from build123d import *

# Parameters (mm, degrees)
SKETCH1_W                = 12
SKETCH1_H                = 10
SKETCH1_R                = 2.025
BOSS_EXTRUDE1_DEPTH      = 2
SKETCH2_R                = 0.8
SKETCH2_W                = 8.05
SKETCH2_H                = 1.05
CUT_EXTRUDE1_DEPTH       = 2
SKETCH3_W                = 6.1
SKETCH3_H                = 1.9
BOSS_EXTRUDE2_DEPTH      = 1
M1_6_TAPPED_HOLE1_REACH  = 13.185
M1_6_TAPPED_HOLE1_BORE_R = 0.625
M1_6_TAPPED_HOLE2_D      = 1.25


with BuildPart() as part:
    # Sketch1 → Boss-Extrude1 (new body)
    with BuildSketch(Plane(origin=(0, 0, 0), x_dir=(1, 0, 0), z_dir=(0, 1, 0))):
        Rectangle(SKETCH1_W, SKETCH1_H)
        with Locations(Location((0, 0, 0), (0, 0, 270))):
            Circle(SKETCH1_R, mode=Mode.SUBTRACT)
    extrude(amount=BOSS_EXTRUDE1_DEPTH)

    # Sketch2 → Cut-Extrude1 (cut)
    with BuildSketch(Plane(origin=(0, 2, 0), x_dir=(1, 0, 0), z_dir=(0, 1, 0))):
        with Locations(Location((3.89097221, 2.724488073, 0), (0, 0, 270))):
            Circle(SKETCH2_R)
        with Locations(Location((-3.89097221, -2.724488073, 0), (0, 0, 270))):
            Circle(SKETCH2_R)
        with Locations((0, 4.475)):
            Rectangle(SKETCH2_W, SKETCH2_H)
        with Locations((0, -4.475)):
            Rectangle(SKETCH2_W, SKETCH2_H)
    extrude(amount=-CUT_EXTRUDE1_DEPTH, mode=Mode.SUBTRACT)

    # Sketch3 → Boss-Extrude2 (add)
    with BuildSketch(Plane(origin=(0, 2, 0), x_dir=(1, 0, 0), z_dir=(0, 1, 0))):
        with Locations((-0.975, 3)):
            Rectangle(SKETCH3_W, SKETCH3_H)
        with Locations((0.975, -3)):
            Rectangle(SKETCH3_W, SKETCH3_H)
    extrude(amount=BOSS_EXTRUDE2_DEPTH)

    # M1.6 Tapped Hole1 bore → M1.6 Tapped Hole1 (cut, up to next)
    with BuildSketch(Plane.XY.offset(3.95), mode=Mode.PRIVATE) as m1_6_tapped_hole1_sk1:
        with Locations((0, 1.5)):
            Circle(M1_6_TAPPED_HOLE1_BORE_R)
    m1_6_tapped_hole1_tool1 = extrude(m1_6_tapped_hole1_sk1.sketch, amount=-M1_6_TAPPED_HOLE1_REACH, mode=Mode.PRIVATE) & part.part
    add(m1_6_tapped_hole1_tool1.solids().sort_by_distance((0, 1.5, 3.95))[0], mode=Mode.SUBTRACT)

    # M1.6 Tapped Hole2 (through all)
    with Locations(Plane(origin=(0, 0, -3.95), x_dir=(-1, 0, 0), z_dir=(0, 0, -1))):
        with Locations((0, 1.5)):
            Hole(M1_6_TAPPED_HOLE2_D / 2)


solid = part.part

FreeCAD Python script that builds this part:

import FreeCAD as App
import Part
import Sketcher
from FreeCAD import Vector


def add_polygon(sketch, points):
    """Adds a closed chain of lines whose ends are joined by coincident constraints."""
    first, n = sketch.GeometryCount, len(points)
    for a, b in zip(points, points[1:] + points[:1]):
        sketch.addGeometry(Part.LineSegment(App.Vector(*a, 0), App.Vector(*b, 0)), False)
    for i in range(n):
        sketch.addConstraint(Sketcher.Constraint("Coincident", first + i, 2, first + (i + 1) % n, 1))

doc = App.newDocument("Part")
params = doc.addObject("Spreadsheet::Sheet", "Params")
for row, (alias, value) in enumerate([
    ("sketch1_diameter", "4.05 mm"),
    ("sketch1_width", "12 mm"),
    ("sketch1_height", "10 mm"),
    ("pad1_length", "2 mm"),
    ("sketch2_diameter", "1.6 mm"),
    ("sketch2_width", "8.05 mm"),
    ("sketch2_height", "1.05 mm"),
    ("pocket1_length", "2 mm"),
    ("sketch3_width", "6.1 mm"),
    ("sketch3_height", "1.9 mm"),
    ("pad2_length", "1 mm"),
    ("sketch4_diameter", "1.25 mm"),
    ("pocket2_length", "2.023864 mm"),
    ("sketch5_diameter", "1.25 mm"),
    ("hole_diameter", "1.25 mm"),
], start=1):
    params.set(f"A{row}", alias)
    params.set(f"B{row}", "=" + value)
    params.setAlias(f"B{row}", alias)

body = doc.addObject("PartDesign::Body", "Body")

# Sketch on XZ plane
sketch1 = body.newObject("Sketcher::SketchObject", "Sketch")
sketch1.AttachmentSupport = (doc.getObject("XZ_Plane"), [""])
sketch1.MapMode = "FlatFace"
add_polygon(sketch1, [(-6, -5), (-6, 5), (6, 5), (6, -5)])  # lines 0-3
sketch1.addGeometry(Part.Circle(Vector(0, 0, 0), Vector(0, 0, 1), 2), False)  # 4
sketch1.addConstraint(Sketcher.Constraint("Vertical", 0))
sketch1.addConstraint(Sketcher.Constraint("Horizontal", 1))
sketch1.addConstraint(Sketcher.Constraint("Vertical", 2))
sketch1.addConstraint(Sketcher.Constraint("Horizontal", 3))
sketch1.addConstraint(Sketcher.Constraint("Coincident", 4, 3, -1, 1))
sketch1.addConstraint(Sketcher.Constraint("Symmetric", 0, 2, 2, 2, -1, 1))
sketch1.addConstraint(Sketcher.Constraint("Diameter", 4, 4.05))
sketch1.addConstraint(Sketcher.Constraint("DistanceX", 1, 1, 1, 2, 12.0))
sketch1.addConstraint(Sketcher.Constraint("DistanceY", 0, 1, 0, 2, 10.0))
sketch1.setExpression("Constraints[10]", "Params.sketch1_diameter")
sketch1.setExpression("Constraints[11]", "Params.sketch1_width")
sketch1.setExpression("Constraints[12]", "Params.sketch1_height")
pad1 = body.newObject("PartDesign::Pad", "Pad")
pad1.Profile = sketch1
pad1.setExpression("Length", "Params.pad1_length")
pad1.Reversed = True

# Sketch on XZ plane
sketch2 = body.newObject("Sketcher::SketchObject", "Sketch001")
sketch2.AttachmentSupport = (doc.getObject("XZ_Plane"), [""])
sketch2.MapMode = "FlatFace"
sketch2.AttachmentOffset = App.Placement(Vector(0, 0, -2), App.Rotation())
sketch2.addGeometry(Part.Circle(Vector(3.9, -2.7, 0), Vector(0, 0, 1), 0.8), False)  # 0
sketch2.addGeometry(Part.Circle(Vector(-3.9, 2.7, 0), Vector(0, 0, 1), 0.8), False)  # 1
add_polygon(sketch2, [(-4, -5), (-4, -4), (4, -4), (4, -5)])  # lines 2-5
add_polygon(sketch2, [(-4, 4), (-4, 5), (4, 5), (4, 4)])  # lines 6-9
sketch2.addConstraint(Sketcher.Constraint("Vertical", 2))
sketch2.addConstraint(Sketcher.Constraint("Horizontal", 3))
sketch2.addConstraint(Sketcher.Constraint("Vertical", 4))
sketch2.addConstraint(Sketcher.Constraint("Horizontal", 5))
sketch2.addConstraint(Sketcher.Constraint("Vertical", 6))
sketch2.addConstraint(Sketcher.Constraint("Horizontal", 7))
sketch2.addConstraint(Sketcher.Constraint("Vertical", 8))
sketch2.addConstraint(Sketcher.Constraint("Horizontal", 9))
sketch2.addConstraint(Sketcher.Constraint("Equal", 0, 1))
sketch2.addConstraint(Sketcher.Constraint("Symmetric", 0, 3, 1, 3, -1, 1))
sketch2.addConstraint(Sketcher.Constraint("Symmetric", 4, 2, 6, 2, -1, 1))
sketch2.addConstraint(Sketcher.Constraint("Symmetric", 2, 2, 8, 2, -1, 1))
sketch2.addConstraint(Sketcher.Constraint("Vertical", 5, 2, 6, 2))
sketch2.addConstraint(Sketcher.Constraint("Diameter", 0, 1.6))
sketch2.addConstraint(Sketcher.Constraint("DistanceY", 4, 2, -1, 1, 5.0))
sketch2.addConstraint(Sketcher.Constraint("DistanceX", 3, 1, 3, 2, 8.05))
sketch2.addConstraint(Sketcher.Constraint("DistanceY", 2, 1, 2, 2, 1.05))
sketch2.addConstraint(Sketcher.Constraint("DistanceY", 0, 3, -1, 1, 2.724488))
sketch2.addConstraint(Sketcher.Constraint("DistanceX", -1, 1, 0, 3, 3.890972))
sketch2.setExpression("Constraints[21]", "Params.sketch2_diameter")
sketch2.setExpression("Constraints[23]", "Params.sketch2_width")
sketch2.setExpression("Constraints[24]", "Params.sketch2_height")
pocket1 = body.newObject("PartDesign::Pocket", "Pocket")
pocket1.Profile = sketch2
pocket1.setExpression("Length", "Params.pocket1_length")
pocket1.Reversed = True

# Sketch on XZ plane
sketch3 = body.newObject("Sketcher::SketchObject", "Sketch002")
sketch3.AttachmentSupport = (doc.getObject("XZ_Plane"), [""])
sketch3.MapMode = "FlatFace"
sketch3.AttachmentOffset = App.Placement(Vector(0, 0, -2), App.Rotation())
add_polygon(sketch3, [(-4, -4), (-4, -2), (2.1, -2), (2.1, -4)])  # lines 0-3
add_polygon(sketch3, [(-2.1, 2), (-2.1, 4), (4, 4), (4, 2)])  # lines 4-7
sketch3.addConstraint(Sketcher.Constraint("Vertical", 0))
sketch3.addConstraint(Sketcher.Constraint("Horizontal", 1))
sketch3.addConstraint(Sketcher.Constraint("Vertical", 2))
sketch3.addConstraint(Sketcher.Constraint("Horizontal", 3))
sketch3.addConstraint(Sketcher.Constraint("Vertical", 4))
sketch3.addConstraint(Sketcher.Constraint("Horizontal", 5))
sketch3.addConstraint(Sketcher.Constraint("Vertical", 6))
sketch3.addConstraint(Sketcher.Constraint("Horizontal", 7))
sketch3.addConstraint(Sketcher.Constraint("Symmetric", 2, 2, 4, 2, -1, 1))
sketch3.addConstraint(Sketcher.Constraint("Symmetric", 0, 2, 6, 2, -1, 1))
sketch3.addConstraint(Sketcher.Constraint("DistanceX", 1, 1, 1, 2, 6.1))
sketch3.addConstraint(Sketcher.Constraint("DistanceY", 0, 1, 0, 2, 1.9))
sketch3.addConstraint(Sketcher.Constraint("DistanceY", 0, 2, 4, 2, 6.0))
sketch3.addConstraint(Sketcher.Constraint("DistanceX", 0, 2, 4, 2, 1.95))
sketch3.setExpression("Constraints[18]", "Params.sketch3_width")
sketch3.setExpression("Constraints[19]", "Params.sketch3_height")
pad2 = body.newObject("PartDesign::Pad", "Pad001")
pad2.Profile = sketch3
pad2.setExpression("Length", "Params.pad2_length")
pad2.Reversed = True

# Sketch on XY plane
sketch4 = body.newObject("Sketcher::SketchObject", "Sketch003")
sketch4.AttachmentSupport = (doc.getObject("XY_Plane"), [""])
sketch4.MapMode = "FlatFace"
sketch4.AttachmentOffset = App.Placement(Vector(0, 0, 3.95), App.Rotation())
sketch4.addGeometry(Part.Circle(Vector(0, 1.5, 0), Vector(0, 0, 1), 0.6), False)
sketch4.addConstraint(Sketcher.Constraint("PointOnObject", 0, 3, -2))
sketch4.addConstraint(Sketcher.Constraint("Diameter", 0, 1.25))
sketch4.addConstraint(Sketcher.Constraint("DistanceY", -1, 1, 0, 3, 1.5))
sketch4.setExpression("Constraints[1]", "Params.sketch4_diameter")
pocket2 = body.newObject("PartDesign::Pocket", "Pocket001")
pocket2.Profile = sketch4
pocket2.setExpression("Length", "Params.pocket2_length")

# Sketch on XY plane
sketch5 = body.newObject("Sketcher::SketchObject", "Sketch004")
sketch5.AttachmentSupport = (doc.getObject("XY_Plane"), [""])
sketch5.MapMode = "FlatFace"
sketch5.AttachmentOffset = App.Placement(Vector(0, 0, -3.95), App.Rotation())
sketch5.addGeometry(Part.Circle(Vector(0, 1.5, 0), Vector(0, 0, 1), 0.6), False)
sketch5.addConstraint(Sketcher.Constraint("PointOnObject", 0, 3, -2))
sketch5.addConstraint(Sketcher.Constraint("Diameter", 0, 1.25))
sketch5.addConstraint(Sketcher.Constraint("DistanceY", -1, 1, 0, 3, 1.5))
sketch5.setExpression("Constraints[1]", "Params.sketch5_diameter")
doc.recompute()
hole = body.newObject("PartDesign::Hole", "Hole")
hole.Profile = sketch5
hole.ThreadType = "None"
hole.setExpression("Diameter", "Params.hole_diameter")
hole.DepthType = "ThroughAll"
hole.Reversed = True

doc.recompute()
